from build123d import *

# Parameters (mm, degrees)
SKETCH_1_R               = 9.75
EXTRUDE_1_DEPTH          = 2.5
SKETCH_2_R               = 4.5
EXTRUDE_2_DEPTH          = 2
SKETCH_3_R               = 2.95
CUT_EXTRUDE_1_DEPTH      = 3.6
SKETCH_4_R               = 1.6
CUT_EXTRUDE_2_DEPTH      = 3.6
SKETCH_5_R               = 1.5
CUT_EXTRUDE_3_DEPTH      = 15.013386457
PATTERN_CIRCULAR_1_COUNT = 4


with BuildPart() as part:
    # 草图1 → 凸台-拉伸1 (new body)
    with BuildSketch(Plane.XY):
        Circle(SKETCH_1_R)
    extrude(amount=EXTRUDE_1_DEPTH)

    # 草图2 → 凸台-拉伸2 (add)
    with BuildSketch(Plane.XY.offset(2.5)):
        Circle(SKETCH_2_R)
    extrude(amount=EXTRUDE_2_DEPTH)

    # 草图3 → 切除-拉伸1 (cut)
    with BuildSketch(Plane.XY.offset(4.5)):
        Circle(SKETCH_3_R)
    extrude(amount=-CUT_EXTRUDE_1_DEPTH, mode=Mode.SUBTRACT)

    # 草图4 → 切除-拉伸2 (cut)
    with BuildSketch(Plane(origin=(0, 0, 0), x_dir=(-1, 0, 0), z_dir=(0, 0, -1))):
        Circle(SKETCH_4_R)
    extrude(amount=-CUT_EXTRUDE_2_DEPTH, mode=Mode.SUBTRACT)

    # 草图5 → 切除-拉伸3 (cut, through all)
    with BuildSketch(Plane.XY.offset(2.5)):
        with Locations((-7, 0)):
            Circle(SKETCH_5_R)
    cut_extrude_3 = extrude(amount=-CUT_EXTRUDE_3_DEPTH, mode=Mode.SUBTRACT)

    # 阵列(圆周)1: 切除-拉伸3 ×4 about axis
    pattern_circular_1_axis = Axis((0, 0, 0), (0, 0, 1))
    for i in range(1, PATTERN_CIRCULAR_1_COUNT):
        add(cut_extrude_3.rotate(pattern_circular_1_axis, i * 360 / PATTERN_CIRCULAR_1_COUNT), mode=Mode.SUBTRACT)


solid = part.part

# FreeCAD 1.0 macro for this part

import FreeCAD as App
import Part
import Sketcher
Q = App.Units.Quantity

doc = App.newDocument("Part")
params = doc.addObject("Spreadsheet::Sheet", "Params")
for row, (alias, value) in enumerate([
    ("sketch1_diameter", "19.5 mm"),
    ("pad1_length", "2.5 mm"),
    ("sketch2_diameter", "9 mm"),
    ("pad2_length", "2 mm"),
    ("sketch3_diameter", "5.9 mm"),
    ("pocket1_length", "3.6 mm"),
    ("sketch4_diameter", "3.2 mm"),
    ("pocket2_length", "3.6 mm"),
    ("sketch5_diameter", "3 mm"),
], start=1):
    params.set(f"A{row}", alias)
    params.set(f"B{row}", "=" + value)
    params.setAlias(f"B{row}", alias)

body = doc.addObject("PartDesign::Body", "Body")

# Sketch on XY plane
sketch1 = body.newObject("Sketcher::SketchObject", "Sketch")
sketch1.AttachmentSupport = (doc.getObject("XY_Plane"), [""])
sketch1.MapMode = "FlatFace"
sketch1.addGeometry(Part.Circle(App.Vector(0, 0, 0), App.Vector(0, 0, 1), 10), False)
sketch1.addConstraint(Sketcher.Constraint("Coincident", 0, 3, -1, 1))
sketch1.addConstraint(Sketcher.Constraint("Diameter", 0, Q("19.5 mm")))
sketch1.setExpression("Constraints[1]", "Params.sketch1_diameter")
pad1 = body.newObject("PartDesign::Pad", "Pad")
pad1.Profile = sketch1
pad1.setExpression("Length", "Params.pad1_length")

# Sketch on XY plane
sketch2 = body.newObject("Sketcher::SketchObject", "Sketch001")
sketch2.AttachmentSupport = (doc.getObject("XY_Plane"), [""])
sketch2.MapMode = "FlatFace"
sketch2.AttachmentOffset = App.Placement(App.Vector(0, 0, 2.5), App.Rotation())
sketch2.addGeometry(Part.Circle(App.Vector(0, 0, 0), App.Vector(0, 0, 1), 4.5), False)
sketch2.addConstraint(Sketcher.Constraint("Coincident", 0, 3, -1, 1))
sketch2.addConstraint(Sketcher.Constraint("Diameter", 0, Q("9 mm")))
sketch2.setExpression("Constraints[1]", "Params.sketch2_diameter")
pad2 = body.newObject("PartDesign::Pad", "Pad001")
pad2.Profile = sketch2
pad2.setExpression("Length", "Params.pad2_length")

# Sketch on XY plane
sketch3 = body.newObject("Sketcher::SketchObject", "Sketch002")
sketch3.AttachmentSupport = (doc.getObject("XY_Plane"), [""])
sketch3.MapMode = "FlatFace"
sketch3.AttachmentOffset = App.Placement(App.Vector(0, 0, 4.5), App.Rotation())
sketch3.addGeometry(Part.Circle(App.Vector(0, 0, 0), App.Vector(0, 0, 1), 3), False)
sketch3.addConstraint(Sketcher.Constraint("Coincident", 0, 3, -1, 1))
sketch3.addConstraint(Sketcher.Constraint("Diameter", 0, Q("5.9 mm")))
sketch3.setExpression("Constraints[1]", "Params.sketch3_diameter")
pocket1 = body.newObject("PartDesign::Pocket", "Pocket")
pocket1.Profile = sketch3
pocket1.setExpression("Length", "Params.pocket1_length")

# Sketch on XY plane
sketch4 = body.newObject("Sketcher::SketchObject", "Sketch003")
sketch4.AttachmentSupport = (doc.getObject("XY_Plane"), [""])
sketch4.MapMode = "FlatFace"
sketch4.addGeometry(Part.Circle(App.Vector(0, 0, 0), App.Vector(0, 0, 1), 1.6), False)
sketch4.addConstraint(Sketcher.Constraint("Coincident", 0, 3, -1, 1))
sketch4.addConstraint(Sketcher.Constraint("Diameter", 0, Q("3.2 mm")))
sketch4.setExpression("Constraints[1]", "Params.sketch4_diameter")
pocket2 = body.newObject("PartDesign::Pocket", "Pocket001")
pocket2.Profile = sketch4
pocket2.setExpression("Length", "Params.pocket2_length")
pocket2.Reversed = True

# Sketch on XY plane
sketch5 = body.newObject("Sketcher::SketchObject", "Sketch004")
sketch5.AttachmentSupport = (doc.getObject("XY_Plane"), [""])
sketch5.MapMode = "FlatFace"
sketch5.AttachmentOffset = App.Placement(App.Vector(0, 0, 2.5), App.Rotation())
sketch5.addGeometry(Part.Circle(App.Vector(-7, 0, 0), App.Vector(0, 0, 1), 1.5), False)
sketch5.addConstraint(Sketcher.Constraint("PointOnObject", 0, 3, -1))
sketch5.addConstraint(Sketcher.Constraint("Diameter", 0, Q("3 mm")))
sketch5.addConstraint(Sketcher.Constraint("DistanceX", 0, 3, -1, 1, Q("7 mm")))
sketch5.setExpression("Constraints[1]", "Params.sketch5_diameter")
pocket3 = body.newObject("PartDesign::Pocket", "Pocket002")
pocket3.Profile = sketch5
pocket3.Type = "ThroughAll"
doc.recompute()

polarpattern = body.newObject("PartDesign::PolarPattern", "PolarPattern")
polarpattern.Originals = [pocket3]
polarpattern.Axis = (doc.getObject("Z_Axis"), [""])
polarpattern.Angle = 360
polarpattern.Occurrences = 4
body.Tip = polarpattern

doc.recompute()
